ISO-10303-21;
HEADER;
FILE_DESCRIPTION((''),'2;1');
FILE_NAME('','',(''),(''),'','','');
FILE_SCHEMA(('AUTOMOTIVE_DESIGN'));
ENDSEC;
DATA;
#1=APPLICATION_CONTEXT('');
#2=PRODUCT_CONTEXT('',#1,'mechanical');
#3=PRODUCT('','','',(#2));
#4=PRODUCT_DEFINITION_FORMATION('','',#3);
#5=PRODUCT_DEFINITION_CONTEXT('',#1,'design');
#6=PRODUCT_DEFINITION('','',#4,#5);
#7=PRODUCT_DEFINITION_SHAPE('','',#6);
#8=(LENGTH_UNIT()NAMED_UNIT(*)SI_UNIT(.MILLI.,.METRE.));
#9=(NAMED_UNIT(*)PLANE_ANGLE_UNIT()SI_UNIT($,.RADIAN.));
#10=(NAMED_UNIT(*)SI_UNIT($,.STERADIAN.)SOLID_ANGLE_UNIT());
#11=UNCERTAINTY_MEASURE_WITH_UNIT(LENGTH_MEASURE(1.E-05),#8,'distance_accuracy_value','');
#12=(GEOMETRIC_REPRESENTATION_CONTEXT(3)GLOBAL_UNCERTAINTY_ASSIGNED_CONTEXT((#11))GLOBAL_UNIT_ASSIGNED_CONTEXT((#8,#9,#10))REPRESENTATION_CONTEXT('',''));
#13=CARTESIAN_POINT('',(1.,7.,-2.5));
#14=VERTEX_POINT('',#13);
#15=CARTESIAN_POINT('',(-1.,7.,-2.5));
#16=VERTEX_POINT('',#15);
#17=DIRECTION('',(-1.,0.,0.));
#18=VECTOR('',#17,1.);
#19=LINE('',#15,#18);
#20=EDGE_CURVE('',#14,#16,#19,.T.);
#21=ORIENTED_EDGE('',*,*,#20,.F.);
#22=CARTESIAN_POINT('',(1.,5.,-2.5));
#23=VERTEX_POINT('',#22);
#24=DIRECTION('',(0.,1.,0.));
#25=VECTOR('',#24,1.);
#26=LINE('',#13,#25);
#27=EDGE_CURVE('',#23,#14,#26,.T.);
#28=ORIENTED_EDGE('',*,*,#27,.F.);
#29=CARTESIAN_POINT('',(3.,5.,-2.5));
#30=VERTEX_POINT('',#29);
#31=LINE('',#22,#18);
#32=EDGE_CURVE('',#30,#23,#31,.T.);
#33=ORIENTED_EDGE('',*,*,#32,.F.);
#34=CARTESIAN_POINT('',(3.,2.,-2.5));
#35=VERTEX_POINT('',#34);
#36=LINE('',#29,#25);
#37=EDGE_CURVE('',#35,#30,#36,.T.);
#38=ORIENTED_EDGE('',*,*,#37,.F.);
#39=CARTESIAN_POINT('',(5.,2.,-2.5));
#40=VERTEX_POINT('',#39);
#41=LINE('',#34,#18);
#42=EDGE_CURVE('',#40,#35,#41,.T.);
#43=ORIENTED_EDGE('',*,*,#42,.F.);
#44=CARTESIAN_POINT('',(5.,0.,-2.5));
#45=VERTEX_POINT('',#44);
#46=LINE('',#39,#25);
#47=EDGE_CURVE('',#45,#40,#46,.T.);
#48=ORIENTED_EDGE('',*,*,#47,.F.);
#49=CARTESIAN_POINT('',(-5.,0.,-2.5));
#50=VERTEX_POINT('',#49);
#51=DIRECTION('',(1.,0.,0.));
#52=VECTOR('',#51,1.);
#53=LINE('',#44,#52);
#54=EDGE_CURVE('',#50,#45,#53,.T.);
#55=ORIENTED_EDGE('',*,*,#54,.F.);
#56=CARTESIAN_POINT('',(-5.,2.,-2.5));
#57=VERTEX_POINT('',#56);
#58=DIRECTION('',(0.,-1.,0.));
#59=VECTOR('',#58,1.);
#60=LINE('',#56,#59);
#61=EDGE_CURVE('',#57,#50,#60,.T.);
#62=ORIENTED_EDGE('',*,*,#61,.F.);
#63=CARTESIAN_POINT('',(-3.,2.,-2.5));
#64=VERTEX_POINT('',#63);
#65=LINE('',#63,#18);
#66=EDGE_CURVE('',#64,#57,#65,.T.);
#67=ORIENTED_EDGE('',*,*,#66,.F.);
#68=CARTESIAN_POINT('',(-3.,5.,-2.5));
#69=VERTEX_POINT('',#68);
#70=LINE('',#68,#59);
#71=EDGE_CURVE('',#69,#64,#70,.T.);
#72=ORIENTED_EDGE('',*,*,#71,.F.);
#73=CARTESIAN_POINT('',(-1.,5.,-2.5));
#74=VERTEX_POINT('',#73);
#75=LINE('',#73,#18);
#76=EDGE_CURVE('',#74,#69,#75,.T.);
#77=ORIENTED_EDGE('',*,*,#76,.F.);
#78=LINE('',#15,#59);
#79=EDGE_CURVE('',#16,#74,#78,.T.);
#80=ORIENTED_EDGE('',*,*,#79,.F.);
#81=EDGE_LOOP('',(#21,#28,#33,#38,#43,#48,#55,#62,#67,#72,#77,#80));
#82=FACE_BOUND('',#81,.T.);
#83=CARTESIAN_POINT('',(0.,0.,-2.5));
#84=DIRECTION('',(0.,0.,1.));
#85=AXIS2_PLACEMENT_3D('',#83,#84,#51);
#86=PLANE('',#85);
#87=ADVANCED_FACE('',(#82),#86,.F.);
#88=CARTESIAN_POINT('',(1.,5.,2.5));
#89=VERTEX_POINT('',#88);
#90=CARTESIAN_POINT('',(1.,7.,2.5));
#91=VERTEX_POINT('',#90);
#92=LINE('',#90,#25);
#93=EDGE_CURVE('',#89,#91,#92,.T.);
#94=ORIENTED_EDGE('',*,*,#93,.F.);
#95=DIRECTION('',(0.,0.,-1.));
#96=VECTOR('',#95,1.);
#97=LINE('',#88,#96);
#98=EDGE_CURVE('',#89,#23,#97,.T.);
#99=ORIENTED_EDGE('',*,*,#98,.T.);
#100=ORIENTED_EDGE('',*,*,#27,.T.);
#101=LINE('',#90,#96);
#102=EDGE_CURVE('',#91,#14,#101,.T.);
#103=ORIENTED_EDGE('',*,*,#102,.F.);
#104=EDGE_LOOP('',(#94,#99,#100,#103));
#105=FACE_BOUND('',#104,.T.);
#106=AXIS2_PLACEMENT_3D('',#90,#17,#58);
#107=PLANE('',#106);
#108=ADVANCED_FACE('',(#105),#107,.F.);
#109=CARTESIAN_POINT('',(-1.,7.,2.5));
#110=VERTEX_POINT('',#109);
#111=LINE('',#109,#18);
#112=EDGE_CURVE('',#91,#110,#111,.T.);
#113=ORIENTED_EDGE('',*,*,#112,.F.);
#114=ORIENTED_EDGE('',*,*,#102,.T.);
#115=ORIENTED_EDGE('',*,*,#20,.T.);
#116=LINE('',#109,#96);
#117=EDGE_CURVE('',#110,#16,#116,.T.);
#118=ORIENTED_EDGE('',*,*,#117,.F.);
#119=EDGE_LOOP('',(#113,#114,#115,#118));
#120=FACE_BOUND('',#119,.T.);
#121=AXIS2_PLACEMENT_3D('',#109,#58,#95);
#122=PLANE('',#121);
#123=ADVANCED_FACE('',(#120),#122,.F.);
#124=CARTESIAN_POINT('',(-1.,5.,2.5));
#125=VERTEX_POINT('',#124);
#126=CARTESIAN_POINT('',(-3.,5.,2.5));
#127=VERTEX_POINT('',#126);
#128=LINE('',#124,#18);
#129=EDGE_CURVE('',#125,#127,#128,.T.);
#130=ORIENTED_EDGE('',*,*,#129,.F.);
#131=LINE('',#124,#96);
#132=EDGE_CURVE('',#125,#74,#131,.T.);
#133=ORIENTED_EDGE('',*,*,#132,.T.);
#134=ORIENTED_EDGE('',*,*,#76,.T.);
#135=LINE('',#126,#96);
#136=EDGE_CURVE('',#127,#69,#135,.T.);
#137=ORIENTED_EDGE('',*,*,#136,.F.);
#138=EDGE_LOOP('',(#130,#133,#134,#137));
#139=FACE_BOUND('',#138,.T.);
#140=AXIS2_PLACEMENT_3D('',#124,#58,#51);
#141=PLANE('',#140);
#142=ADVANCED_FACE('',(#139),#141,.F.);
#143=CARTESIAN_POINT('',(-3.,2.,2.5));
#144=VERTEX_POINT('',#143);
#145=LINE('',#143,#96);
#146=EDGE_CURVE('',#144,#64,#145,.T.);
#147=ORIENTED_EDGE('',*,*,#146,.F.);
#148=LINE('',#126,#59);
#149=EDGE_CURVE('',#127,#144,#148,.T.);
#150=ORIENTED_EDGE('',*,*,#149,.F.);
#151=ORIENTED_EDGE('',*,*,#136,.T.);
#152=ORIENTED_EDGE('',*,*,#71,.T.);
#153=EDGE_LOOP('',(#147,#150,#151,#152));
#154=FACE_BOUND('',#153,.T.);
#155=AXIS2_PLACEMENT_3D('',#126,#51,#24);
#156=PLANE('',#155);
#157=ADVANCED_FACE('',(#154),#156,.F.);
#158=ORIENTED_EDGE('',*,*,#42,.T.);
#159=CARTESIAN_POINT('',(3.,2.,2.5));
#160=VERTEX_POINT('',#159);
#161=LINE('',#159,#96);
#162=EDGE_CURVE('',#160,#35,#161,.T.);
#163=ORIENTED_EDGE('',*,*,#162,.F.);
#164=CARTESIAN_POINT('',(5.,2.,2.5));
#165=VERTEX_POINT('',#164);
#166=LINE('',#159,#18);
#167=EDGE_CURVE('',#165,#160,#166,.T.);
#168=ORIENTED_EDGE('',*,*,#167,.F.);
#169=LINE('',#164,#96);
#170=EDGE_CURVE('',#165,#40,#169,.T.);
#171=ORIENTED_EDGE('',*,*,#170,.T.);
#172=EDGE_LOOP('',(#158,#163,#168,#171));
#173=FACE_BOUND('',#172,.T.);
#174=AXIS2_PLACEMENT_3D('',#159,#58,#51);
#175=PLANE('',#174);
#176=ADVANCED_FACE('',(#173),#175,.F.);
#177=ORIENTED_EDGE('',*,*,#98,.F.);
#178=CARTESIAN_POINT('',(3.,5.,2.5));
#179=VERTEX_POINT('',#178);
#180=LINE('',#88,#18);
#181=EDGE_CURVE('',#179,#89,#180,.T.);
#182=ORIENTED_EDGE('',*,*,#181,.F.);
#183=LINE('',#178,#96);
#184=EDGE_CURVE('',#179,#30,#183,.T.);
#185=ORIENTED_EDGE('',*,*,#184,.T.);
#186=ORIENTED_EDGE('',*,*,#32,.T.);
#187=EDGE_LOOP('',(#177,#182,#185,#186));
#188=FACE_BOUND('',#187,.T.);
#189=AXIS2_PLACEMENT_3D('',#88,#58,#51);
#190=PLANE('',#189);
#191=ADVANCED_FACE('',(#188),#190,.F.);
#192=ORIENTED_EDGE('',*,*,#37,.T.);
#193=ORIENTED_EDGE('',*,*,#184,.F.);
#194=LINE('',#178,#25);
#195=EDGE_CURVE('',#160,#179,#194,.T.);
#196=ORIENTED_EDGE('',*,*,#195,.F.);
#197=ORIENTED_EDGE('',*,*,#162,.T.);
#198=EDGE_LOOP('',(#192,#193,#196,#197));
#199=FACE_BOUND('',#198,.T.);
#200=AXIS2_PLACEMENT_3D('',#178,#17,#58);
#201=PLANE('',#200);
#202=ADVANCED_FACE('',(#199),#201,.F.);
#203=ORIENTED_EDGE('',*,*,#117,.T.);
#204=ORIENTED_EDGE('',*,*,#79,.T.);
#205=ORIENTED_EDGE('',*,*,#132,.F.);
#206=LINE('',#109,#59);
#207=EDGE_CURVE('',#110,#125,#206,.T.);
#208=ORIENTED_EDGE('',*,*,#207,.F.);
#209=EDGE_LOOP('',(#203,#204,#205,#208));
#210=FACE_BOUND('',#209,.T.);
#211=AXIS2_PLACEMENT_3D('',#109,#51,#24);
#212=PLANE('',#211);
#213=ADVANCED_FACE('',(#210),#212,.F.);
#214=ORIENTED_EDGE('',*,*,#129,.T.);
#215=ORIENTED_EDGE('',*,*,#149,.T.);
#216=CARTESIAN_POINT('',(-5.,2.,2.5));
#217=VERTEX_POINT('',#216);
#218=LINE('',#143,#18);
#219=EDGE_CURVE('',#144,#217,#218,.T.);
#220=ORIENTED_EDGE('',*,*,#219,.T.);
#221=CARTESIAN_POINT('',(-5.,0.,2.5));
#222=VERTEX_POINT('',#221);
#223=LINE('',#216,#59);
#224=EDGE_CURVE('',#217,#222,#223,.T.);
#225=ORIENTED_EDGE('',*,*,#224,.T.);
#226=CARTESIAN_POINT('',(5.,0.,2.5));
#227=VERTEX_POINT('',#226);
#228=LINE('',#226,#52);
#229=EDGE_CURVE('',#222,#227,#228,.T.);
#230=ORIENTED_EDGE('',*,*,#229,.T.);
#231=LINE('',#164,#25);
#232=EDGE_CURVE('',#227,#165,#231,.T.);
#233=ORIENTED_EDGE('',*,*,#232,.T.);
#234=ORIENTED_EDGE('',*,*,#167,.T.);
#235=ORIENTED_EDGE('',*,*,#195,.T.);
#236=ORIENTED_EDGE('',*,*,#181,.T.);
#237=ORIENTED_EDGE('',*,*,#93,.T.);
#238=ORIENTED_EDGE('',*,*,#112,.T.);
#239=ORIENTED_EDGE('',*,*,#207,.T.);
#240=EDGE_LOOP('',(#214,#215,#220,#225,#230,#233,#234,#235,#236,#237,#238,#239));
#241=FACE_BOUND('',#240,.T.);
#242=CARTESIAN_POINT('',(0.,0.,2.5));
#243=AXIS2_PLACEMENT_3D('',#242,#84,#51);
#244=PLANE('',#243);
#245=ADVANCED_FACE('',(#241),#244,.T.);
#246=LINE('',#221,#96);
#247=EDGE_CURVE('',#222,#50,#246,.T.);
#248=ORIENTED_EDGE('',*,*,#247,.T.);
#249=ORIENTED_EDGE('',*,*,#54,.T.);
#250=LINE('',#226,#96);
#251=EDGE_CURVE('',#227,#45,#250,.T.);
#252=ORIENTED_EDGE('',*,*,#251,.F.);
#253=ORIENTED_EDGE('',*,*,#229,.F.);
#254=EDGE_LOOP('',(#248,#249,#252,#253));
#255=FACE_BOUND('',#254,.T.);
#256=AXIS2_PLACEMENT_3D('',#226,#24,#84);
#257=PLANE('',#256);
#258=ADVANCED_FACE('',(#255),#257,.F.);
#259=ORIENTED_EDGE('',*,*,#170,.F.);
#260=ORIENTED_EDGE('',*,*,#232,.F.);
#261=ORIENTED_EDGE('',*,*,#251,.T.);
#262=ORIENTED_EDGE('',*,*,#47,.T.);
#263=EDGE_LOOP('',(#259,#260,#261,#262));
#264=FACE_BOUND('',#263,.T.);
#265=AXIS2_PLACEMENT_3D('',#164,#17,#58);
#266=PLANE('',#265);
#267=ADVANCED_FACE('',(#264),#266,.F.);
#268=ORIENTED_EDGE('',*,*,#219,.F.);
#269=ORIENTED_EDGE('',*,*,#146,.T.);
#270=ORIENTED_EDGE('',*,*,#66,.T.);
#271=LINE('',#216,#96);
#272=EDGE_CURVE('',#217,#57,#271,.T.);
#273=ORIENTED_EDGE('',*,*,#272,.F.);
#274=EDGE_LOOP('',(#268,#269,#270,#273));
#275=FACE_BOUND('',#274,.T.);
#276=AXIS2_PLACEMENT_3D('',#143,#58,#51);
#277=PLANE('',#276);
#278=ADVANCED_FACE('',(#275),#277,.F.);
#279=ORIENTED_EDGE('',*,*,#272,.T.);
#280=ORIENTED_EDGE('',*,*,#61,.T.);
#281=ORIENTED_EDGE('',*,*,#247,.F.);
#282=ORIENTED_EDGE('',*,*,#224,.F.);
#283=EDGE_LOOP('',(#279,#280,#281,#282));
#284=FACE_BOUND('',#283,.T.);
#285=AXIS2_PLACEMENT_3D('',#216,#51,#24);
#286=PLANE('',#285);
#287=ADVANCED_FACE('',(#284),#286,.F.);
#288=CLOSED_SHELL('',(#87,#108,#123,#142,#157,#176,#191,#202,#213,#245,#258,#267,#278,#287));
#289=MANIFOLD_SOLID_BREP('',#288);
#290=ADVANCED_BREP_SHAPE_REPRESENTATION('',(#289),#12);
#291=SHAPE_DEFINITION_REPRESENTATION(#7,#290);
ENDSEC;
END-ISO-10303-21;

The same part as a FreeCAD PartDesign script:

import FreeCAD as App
import Part
import Sketcher
Q = App.Units.Quantity


def add_polygon(sketch, points):
    """Adds a closed chain of lines whose ends are joined by coincident constraints."""
    first, n = sketch.GeometryCount, len(points)
    for a, b in zip(points, points[1:] + points[:1]):
        sketch.addGeometry(Part.LineSegment(App.Vector(*a, 0), App.Vector(*b, 0)), False)
    for i in range(n):
        sketch.addConstraint(Sketcher.Constraint("Coincident", first + i, 2, first + (i + 1) % n, 1))

doc = App.newDocument("Part")
body = doc.addObject("PartDesign::Body", "Body")

# Sketch on XY plane
sketch1 = doc.addObject("Sketcher::SketchObject", "Sketch")
body.addObject(sketch1)
sketch1.AttachmentSupport = (doc.XY_Plane, [""])
sketch1.MapMode = "FlatFace"
add_polygon(sketch1, [(1, 7), (-1, 7), (-1, 5), (-3, 5), (-3, 2), (-5, 2), (-5, 0), (5, 0), (5, 2), (3, 2), (3, 5), (1, 5)])  # lines 0-11
sketch1.addConstraint([
    Sketcher.Constraint("Horizontal", 0),
    Sketcher.Constraint("Vertical", 1),
    Sketcher.Constraint("Horizontal", 2),
    Sketcher.Constraint("Vertical", 3),
    Sketcher.Constraint("Horizontal", 4),
    Sketcher.Constraint("Vertical", 5),
    Sketcher.Constraint("Horizontal", 6),
    Sketcher.Constraint("Vertical", 7),
    Sketcher.Constraint("Horizontal", 8),
    Sketcher.Constraint("Vertical", 9),
    Sketcher.Constraint("Horizontal", 10),
    Sketcher.Constraint("Vertical", 11),
    Sketcher.Constraint("Symmetric", 5, 2, 6, 2, -1, 1),
    Sketcher.Constraint("Symmetric", 3, 2, 8, 2, -2),
    Sketcher.Constraint("Symmetric", 1, 2, 10, 2, -2),
    Sketcher.Constraint("Equal", 0, 2),
    Sketcher.Constraint("Equal", 2, 4),
    Sketcher.Constraint("Equal", 10, 1),
    Sketcher.Constraint("Equal", 1, 5),
    Sketcher.Constraint("DistanceX", 0, 2, 0, 1, Q("2 mm")),
    Sketcher.Constraint("DistanceY", 3, 2, 3, 1, Q("3 mm")),
])
pad1 = doc.addObject("PartDesign::Pad", "Pad")
body.addObject(pad1)
pad1.Profile = sketch1
pad1.Length = 5
pad1.Midplane = True

doc.recompute()
